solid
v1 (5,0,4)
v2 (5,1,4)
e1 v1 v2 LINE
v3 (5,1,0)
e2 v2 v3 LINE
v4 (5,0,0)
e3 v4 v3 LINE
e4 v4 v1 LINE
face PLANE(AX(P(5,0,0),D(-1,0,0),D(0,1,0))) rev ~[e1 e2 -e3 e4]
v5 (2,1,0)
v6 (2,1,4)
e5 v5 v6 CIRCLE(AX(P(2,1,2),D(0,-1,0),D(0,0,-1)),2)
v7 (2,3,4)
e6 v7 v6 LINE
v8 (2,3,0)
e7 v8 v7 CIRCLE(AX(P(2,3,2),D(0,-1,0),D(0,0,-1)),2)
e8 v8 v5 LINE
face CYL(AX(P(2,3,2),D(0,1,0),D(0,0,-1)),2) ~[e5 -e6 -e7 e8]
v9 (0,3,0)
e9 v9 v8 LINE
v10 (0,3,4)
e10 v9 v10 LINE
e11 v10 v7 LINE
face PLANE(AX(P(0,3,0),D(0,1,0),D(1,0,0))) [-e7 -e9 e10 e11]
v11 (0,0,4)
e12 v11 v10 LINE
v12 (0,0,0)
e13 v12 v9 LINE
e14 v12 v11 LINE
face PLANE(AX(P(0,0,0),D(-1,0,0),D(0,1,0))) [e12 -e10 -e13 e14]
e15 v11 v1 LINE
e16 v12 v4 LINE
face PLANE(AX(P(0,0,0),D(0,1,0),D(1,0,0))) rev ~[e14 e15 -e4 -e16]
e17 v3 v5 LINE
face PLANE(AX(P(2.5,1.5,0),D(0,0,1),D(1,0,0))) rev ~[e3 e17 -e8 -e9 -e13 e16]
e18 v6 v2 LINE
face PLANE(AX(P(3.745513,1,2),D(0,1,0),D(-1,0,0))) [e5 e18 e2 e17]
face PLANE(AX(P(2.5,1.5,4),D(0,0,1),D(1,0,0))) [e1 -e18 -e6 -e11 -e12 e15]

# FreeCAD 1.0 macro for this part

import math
import FreeCAD as App
import Part
import Sketcher
Q = App.Units.Quantity


def add_polygon(sketch, points):
    """Adds a closed chain of lines whose ends are joined by coincident constraints."""
    first, n = sketch.GeometryCount, len(points)
    for a, b in zip(points, points[1:] + points[:1]):
        sketch.addGeometry(Part.LineSegment(App.Vector(*a, 0), App.Vector(*b, 0)), False)
    for i in range(n):
        sketch.addConstraint(Sketcher.Constraint("Coincident", first + i, 2, first + (i + 1) % n, 1))

doc = App.newDocument("Part")
body = doc.addObject("PartDesign::Body", "Body")

sketch1 = body.newObject("Sketcher::SketchObject", "Sketch")
sketch1.AttachmentSupport = (doc.getObject("XY_Plane"), [""])
sketch1.MapMode = "FlatFace"
add_polygon(sketch1, [(0, 3), (0, 0), (5, 0), (5, 3)])
sketch1.addConstraint([
    Sketcher.Constraint("Vertical", 0),
    Sketcher.Constraint("Horizontal", 1),
    Sketcher.Constraint("Vertical", 2),
    Sketcher.Constraint("Horizontal", 3),
    Sketcher.Constraint("Coincident", 0, 2, -1, 1),
    Sketcher.Constraint("DistanceX", 1, 1, 1, 2, Q("5 mm")),
    Sketcher.Constraint("DistanceY", 0, 2, 0, 1, Q("3 mm")),
])
pad1 = body.newObject("PartDesign::Pad", "Pad")
pad1.Profile = sketch1
pad1.Length = 4

sketch2 = body.newObject("Sketcher::SketchObject", "Sketch001")
sketch2.AttachmentSupport = (doc.getObject("XZ_Plane"), [""])
sketch2.MapMode = "FlatFace"
sketch2.AttachmentOffset = App.Placement(App.Vector(0, 0, -3), App.Rotation())
sketch2.addGeometry([
    Part.LineSegment(App.Vector(5, 0, 0), App.Vector(2, 0, 0)),
    Part.ArcOfCircle(Part.Circle(App.Vector(2, 2, 0), App.Vector(0, 0, 1), 2), math.radians(-90), math.radians(90)),
    Part.LineSegment(App.Vector(2, 4, 0), App.Vector(5, 4, 0)),
    Part.LineSegment(App.Vector(5, 4, 0), App.Vector(5, 0, 0)),
], False)
sketch2.addConstraint([
    Sketcher.Constraint("Tangent", 0, 2, 1, 1),
    Sketcher.Constraint("Tangent", 1, 2, 2, 1),
    Sketcher.Constraint("Coincident", 2, 2, 3, 1),
    Sketcher.Constraint("Coincident", 3, 2, 0, 1),
    Sketcher.Constraint("Horizontal", 0),
    Sketcher.Constraint("Horizontal", 2),
    Sketcher.Constraint("Vertical", 3),
    Sketcher.Constraint("PointOnObject", 0, 2, -1),
    Sketcher.Constraint("Radius", 1, Q("2 mm")),
    Sketcher.Constraint("DistanceX", 0, 2, 0, 1, Q("3 mm")),
    Sketcher.Constraint("DistanceX", -1, 1, 1, 3, Q("2 mm")),
])
pocket1 = body.newObject("PartDesign::Pocket", "Pocket")
pocket1.Profile = sketch2
pocket1.Length = 2
pocket1.Reversed = True

doc.recompute()
